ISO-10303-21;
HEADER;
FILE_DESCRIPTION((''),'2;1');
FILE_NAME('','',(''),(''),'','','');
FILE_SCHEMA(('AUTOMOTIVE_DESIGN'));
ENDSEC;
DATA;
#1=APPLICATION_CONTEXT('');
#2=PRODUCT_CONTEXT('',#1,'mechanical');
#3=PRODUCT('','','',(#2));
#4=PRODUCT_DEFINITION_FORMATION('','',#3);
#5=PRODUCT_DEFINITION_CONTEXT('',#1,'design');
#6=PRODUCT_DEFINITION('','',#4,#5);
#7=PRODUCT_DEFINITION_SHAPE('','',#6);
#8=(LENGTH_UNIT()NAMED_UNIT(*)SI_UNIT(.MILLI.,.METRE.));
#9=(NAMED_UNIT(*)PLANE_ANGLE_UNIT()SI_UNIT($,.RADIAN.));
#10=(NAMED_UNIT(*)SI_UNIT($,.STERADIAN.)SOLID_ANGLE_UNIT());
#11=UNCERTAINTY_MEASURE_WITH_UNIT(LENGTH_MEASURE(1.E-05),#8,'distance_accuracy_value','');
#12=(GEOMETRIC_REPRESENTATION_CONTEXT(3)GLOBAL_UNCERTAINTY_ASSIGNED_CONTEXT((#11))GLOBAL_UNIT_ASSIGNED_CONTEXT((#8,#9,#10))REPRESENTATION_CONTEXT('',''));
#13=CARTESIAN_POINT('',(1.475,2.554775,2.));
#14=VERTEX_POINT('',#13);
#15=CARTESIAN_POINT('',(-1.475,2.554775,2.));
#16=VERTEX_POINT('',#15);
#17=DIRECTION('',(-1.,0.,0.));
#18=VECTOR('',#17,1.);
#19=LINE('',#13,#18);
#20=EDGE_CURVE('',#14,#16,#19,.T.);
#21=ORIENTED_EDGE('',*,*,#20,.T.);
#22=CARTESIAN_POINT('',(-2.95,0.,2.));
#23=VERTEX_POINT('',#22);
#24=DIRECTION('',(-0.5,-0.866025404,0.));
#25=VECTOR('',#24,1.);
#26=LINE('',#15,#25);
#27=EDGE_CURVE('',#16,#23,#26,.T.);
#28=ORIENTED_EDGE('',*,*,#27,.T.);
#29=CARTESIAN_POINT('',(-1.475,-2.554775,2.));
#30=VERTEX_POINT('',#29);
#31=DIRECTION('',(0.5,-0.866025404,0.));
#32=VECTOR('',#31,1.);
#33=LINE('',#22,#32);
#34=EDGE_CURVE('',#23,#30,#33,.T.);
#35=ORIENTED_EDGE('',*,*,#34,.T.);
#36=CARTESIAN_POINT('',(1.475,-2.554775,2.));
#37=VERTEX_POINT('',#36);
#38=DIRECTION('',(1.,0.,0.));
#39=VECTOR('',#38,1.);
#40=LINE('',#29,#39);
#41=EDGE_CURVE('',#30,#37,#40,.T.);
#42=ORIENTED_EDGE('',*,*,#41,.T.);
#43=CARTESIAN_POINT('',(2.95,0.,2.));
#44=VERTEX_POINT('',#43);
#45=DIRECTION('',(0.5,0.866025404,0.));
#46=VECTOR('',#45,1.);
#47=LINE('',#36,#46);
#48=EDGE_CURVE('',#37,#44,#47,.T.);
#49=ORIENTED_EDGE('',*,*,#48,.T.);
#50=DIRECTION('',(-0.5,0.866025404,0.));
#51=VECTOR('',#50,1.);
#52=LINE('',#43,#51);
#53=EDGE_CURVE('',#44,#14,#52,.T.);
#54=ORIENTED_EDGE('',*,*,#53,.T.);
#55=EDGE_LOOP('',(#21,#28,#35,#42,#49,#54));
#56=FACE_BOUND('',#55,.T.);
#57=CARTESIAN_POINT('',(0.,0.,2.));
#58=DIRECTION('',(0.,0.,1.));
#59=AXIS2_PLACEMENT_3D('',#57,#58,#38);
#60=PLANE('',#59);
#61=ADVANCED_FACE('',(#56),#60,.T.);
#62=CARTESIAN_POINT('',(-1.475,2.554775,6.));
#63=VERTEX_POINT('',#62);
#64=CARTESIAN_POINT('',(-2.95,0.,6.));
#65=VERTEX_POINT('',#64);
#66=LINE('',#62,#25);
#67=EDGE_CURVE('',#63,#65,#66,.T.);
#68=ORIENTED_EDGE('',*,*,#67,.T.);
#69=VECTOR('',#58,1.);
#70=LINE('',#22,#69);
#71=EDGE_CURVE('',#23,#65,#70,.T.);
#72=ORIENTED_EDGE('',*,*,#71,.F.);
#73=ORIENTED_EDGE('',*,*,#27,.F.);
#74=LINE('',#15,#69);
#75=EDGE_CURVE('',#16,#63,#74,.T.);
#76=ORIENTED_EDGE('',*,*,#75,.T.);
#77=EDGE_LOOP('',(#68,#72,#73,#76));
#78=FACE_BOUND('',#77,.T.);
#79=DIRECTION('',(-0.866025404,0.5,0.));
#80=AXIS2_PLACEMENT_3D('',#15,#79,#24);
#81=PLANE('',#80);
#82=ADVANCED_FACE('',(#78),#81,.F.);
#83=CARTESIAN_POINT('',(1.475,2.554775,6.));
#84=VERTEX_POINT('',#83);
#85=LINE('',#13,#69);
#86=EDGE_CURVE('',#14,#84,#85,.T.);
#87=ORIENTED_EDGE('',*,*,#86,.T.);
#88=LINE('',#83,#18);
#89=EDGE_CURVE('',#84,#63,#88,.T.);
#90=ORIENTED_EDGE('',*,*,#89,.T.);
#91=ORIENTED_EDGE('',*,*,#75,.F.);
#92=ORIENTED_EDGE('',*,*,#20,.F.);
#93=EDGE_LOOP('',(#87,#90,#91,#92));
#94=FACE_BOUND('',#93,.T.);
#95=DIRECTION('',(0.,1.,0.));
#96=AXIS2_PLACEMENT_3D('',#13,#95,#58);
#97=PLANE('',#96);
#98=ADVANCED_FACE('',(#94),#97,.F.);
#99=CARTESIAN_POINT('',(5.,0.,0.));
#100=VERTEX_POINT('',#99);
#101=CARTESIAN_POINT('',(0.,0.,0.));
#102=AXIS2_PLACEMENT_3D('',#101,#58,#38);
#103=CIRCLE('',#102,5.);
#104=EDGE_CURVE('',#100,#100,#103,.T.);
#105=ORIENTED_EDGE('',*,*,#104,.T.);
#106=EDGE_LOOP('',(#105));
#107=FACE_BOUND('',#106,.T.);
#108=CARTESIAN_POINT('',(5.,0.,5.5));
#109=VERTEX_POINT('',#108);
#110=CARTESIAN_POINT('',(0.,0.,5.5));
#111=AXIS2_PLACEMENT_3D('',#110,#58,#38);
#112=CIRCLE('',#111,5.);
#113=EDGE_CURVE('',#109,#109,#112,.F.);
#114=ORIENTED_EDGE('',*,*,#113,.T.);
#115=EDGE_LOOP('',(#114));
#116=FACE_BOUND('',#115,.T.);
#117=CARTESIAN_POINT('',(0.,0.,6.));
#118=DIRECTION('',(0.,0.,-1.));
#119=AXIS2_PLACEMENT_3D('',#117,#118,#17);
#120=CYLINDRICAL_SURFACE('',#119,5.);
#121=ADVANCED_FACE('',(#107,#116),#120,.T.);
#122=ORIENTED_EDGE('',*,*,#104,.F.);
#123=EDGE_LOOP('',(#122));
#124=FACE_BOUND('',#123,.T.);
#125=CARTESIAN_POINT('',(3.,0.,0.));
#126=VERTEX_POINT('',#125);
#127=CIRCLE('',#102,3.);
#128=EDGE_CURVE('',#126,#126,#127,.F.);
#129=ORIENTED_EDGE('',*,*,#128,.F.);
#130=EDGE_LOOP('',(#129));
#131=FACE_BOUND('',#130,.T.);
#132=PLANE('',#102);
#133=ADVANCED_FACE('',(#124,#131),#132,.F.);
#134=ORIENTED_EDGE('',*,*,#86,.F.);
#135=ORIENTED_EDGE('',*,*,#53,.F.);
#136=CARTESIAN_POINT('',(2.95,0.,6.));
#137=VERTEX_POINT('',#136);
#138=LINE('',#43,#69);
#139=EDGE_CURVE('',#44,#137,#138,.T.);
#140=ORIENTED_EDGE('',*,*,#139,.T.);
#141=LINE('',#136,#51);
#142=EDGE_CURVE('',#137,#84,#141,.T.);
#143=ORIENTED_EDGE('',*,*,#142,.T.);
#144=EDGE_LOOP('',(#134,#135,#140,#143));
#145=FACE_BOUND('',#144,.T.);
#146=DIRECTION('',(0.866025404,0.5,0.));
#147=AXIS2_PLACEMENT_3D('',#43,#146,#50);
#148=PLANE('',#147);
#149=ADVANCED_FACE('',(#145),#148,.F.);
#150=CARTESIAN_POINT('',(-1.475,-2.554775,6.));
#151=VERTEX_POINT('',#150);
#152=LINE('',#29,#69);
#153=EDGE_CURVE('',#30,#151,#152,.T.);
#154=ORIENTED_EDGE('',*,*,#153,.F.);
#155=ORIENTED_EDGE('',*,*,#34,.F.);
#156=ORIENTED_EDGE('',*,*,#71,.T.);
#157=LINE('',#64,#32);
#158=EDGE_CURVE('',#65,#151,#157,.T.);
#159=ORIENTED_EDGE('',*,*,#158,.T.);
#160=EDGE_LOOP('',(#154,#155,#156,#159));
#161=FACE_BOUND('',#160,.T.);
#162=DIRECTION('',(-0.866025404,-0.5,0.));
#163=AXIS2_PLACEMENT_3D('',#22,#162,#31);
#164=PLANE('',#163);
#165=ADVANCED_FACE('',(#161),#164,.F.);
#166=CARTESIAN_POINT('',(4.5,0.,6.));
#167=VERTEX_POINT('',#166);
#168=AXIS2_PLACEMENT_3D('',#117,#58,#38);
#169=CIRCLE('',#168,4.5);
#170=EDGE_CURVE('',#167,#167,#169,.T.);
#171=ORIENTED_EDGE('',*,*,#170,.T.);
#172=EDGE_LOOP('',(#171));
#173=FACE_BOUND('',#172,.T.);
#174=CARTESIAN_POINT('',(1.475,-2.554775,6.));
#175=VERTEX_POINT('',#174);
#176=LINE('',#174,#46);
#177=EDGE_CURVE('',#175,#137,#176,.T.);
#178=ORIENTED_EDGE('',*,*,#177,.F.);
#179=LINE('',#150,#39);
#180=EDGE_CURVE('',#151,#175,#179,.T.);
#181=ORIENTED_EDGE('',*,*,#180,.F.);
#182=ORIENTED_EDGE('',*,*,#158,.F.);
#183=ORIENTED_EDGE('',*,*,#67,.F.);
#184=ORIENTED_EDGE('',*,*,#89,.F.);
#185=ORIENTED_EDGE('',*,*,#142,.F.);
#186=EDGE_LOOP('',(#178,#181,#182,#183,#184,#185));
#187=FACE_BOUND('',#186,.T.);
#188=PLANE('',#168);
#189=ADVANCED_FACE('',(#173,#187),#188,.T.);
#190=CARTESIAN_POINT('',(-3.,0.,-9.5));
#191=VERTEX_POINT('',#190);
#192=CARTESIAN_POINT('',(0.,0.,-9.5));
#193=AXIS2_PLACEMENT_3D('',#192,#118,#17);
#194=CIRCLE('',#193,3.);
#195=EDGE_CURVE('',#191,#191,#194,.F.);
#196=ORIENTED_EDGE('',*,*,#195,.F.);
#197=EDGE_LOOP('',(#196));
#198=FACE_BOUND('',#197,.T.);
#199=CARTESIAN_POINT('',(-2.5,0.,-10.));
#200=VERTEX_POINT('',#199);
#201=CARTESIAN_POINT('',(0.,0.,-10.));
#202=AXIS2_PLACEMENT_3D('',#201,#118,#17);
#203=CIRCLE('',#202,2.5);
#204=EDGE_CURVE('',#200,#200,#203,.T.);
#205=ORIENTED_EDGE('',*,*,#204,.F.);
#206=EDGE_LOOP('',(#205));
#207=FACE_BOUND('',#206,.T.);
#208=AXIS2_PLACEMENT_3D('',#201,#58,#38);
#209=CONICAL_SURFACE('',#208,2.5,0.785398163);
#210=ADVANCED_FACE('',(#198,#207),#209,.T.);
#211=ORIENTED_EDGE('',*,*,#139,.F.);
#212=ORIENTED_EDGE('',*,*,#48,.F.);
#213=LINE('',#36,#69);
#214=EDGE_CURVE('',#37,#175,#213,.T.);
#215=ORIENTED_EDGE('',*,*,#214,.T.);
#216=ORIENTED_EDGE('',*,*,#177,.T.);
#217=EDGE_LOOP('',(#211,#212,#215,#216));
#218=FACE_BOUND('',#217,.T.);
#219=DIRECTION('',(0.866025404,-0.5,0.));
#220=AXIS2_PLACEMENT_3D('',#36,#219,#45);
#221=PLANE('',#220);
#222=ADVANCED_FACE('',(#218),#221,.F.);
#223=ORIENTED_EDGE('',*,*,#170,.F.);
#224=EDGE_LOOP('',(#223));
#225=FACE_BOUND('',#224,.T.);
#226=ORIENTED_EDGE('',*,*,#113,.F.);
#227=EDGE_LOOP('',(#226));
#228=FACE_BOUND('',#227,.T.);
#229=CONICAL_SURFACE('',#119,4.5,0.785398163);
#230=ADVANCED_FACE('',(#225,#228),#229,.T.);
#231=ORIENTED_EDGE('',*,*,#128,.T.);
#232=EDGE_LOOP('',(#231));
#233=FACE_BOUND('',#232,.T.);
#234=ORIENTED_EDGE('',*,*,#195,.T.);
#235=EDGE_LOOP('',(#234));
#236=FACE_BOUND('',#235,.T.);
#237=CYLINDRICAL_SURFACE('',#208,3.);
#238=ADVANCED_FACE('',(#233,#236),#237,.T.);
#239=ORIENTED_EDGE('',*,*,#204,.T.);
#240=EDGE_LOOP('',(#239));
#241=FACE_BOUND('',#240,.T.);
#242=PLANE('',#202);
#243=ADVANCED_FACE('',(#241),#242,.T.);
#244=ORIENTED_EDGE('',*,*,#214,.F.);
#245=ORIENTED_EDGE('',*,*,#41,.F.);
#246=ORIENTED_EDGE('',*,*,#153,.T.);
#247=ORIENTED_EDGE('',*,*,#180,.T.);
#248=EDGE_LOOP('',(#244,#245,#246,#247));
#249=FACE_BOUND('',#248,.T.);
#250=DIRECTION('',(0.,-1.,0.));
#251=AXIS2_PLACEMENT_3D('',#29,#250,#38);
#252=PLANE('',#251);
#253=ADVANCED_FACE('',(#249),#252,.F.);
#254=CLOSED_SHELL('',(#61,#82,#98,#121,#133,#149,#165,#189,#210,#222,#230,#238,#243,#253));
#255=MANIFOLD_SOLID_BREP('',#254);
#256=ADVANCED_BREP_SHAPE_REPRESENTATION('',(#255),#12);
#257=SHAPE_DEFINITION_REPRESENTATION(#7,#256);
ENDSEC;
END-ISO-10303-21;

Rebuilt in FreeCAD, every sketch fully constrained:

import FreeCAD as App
import Part
import Sketcher
Q = App.Units.Quantity


def edges_at(feature, points):
    """Names of the edges that pass closest to the given points."""
    edges = feature.Shape.Edges
    near = lambda p: min(range(len(edges)), key=lambda i: edges[i].distToShape(Part.Vertex(*p))[0])
    return sorted({f"Edge{near(p) + 1}" for p in points})

doc = App.newDocument("Part")
body = doc.addObject("PartDesign::Body", "Body")

# Sketch on XY plane
sketch1 = body.newObject("Sketcher::SketchObject", "Sketch")
sketch1.AttachmentSupport = (doc.getObject("XY_Plane"), [""])
sketch1.MapMode = "FlatFace"
sketch1.addGeometry(Part.Circle(App.Vector(0, 0, 0), App.Vector(0, 0, 1), 5), False)
sketch1.addConstraint([
    Sketcher.Constraint("Coincident", 0, 3, -1, 1),
    Sketcher.Constraint("Diameter", 0, Q("10 mm")),
])
pad1 = body.newObject("PartDesign::Pad", "Pad")
pad1.Profile = sketch1
pad1.Length = 6

# Sketch on XY plane
sketch2 = body.newObject("Sketcher::SketchObject", "Sketch001")
sketch2.AttachmentSupport = (doc.getObject("XY_Plane"), [""])
sketch2.MapMode = "FlatFace"
sketch2.addGeometry(Part.Circle(App.Vector(0, 0, 0), App.Vector(0, 0, 1), 3), False)
sketch2.addConstraint([
    Sketcher.Constraint("Coincident", 0, 3, -1, 1),
    Sketcher.Constraint("Diameter", 0, Q("6 mm")),
])
pad2 = body.newObject("PartDesign::Pad", "Pad001")
pad2.Profile = sketch2
pad2.Length = 10
pad2.Reversed = True
doc.recompute()

chamfer = body.newObject("PartDesign::Chamfer", "Chamfer")
chamfer.Base = (pad2, edges_at(pad2, [(-5, 0, 6), (-3, 0, -10)]))
chamfer.Size = 0.5

# Sketch on XY plane
sketch3 = body.newObject("Sketcher::SketchObject", "Sketch002")
sketch3.AttachmentSupport = (doc.getObject("XY_Plane"), [""])
sketch3.MapMode = "FlatFace"
sketch3.AttachmentOffset = App.Placement(App.Vector(0, 0, 6), App.Rotation())
sketch3.addGeometry([
    Part.LineSegment(App.Vector(3, 0, 0), App.Vector(1.5, 2.6, 0)),  # 0
    Part.LineSegment(App.Vector(1.5, 2.6, 0), App.Vector(-1.5, 2.6, 0)),  # 1
    Part.LineSegment(App.Vector(-1.5, 2.6, 0), App.Vector(-3, 0, 0)),  # 2
    Part.LineSegment(App.Vector(-3, 0, 0), App.Vector(-1.5, -2.6, 0)),  # 3
    Part.LineSegment(App.Vector(-1.5, -2.6, 0), App.Vector(1.5, -2.6, 0)),  # 4
    Part.LineSegment(App.Vector(1.5, -2.6, 0), App.Vector(3, 0, 0)),  # 5
], False)
sketch3.addConstraint([
    Sketcher.Constraint("Coincident", 0, 2, 1, 1),
    Sketcher.Constraint("Coincident", 1, 2, 2, 1),
    Sketcher.Constraint("Coincident", 2, 2, 3, 1),
    Sketcher.Constraint("Coincident", 3, 2, 4, 1),
    Sketcher.Constraint("Coincident", 4, 2, 5, 1),
    Sketcher.Constraint("Coincident", 5, 2, 0, 1),
    Sketcher.Constraint("Horizontal", 1),
    Sketcher.Constraint("Horizontal", 4),
    Sketcher.Constraint("Symmetric", 0, 2, 3, 2, -1, 1),
    Sketcher.Constraint("Symmetric", 2, 2, 5, 2, -1, 1),
    Sketcher.Constraint("PointOnObject", 2, 2, -1),
    Sketcher.Constraint("Parallel", 2, 5),
    Sketcher.Constraint("Vertical", 1, 2, 3, 2),
    Sketcher.Constraint("Angle", 0, Q("120 deg")),
    Sketcher.Constraint("DistanceX", 1, 2, 1, 1, Q("2.95 mm")),
    Sketcher.Constraint("DistanceX", 2, 2, 5, 2, Q("5.9 mm")),
])
pocket1 = body.newObject("PartDesign::Pocket", "Pocket")
pocket1.Profile = sketch3
pocket1.Length = 4

doc.recompute()
